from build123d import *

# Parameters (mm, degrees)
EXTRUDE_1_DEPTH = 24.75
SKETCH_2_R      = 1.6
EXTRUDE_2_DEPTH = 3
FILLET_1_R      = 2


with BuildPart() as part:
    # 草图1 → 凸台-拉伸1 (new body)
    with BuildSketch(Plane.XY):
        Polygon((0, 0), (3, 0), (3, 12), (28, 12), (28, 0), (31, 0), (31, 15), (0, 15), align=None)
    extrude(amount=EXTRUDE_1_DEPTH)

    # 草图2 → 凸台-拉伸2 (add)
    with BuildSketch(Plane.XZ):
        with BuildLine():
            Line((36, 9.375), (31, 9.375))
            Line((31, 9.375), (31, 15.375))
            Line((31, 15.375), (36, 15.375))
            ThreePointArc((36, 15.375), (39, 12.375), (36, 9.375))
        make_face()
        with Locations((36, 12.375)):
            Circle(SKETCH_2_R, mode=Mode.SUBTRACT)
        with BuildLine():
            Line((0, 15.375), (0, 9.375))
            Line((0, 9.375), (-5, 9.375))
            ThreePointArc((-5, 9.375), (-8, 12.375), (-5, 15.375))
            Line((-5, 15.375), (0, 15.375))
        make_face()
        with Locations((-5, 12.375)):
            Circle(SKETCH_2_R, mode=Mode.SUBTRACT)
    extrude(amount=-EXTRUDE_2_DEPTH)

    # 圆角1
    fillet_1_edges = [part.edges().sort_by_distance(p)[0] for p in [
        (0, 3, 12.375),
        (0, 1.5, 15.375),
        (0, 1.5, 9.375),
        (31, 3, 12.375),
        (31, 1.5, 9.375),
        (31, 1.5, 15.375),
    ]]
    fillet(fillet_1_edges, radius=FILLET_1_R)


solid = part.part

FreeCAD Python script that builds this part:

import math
import FreeCAD as App
import Part
import Sketcher
from FreeCAD import Vector


def edges_at(feature, points):
    """Names of the edges that pass closest to the given points."""
    edges = feature.Shape.Edges
    near = lambda p: min(range(len(edges)), key=lambda i: edges[i].distToShape(Part.Vertex(*p))[0])
    return sorted({f"Edge{near(p) + 1}" for p in points})


def add_polygon(sketch, points):
    """Adds a closed chain of lines whose ends are joined by coincident constraints."""
    first, n = sketch.GeometryCount, len(points)
    for a, b in zip(points, points[1:] + points[:1]):
        sketch.addGeometry(Part.LineSegment(App.Vector(*a, 0), App.Vector(*b, 0)), False)
    for i in range(n):
        sketch.addConstraint(Sketcher.Constraint("Coincident", first + i, 2, first + (i + 1) % n, 1))

doc = App.newDocument("Part")
body = doc.addObject("PartDesign::Body", "Body")

# Sketch on XY plane
sketch1 = body.newObject("Sketcher::SketchObject", "Sketch")
sketch1.AttachmentSupport = (doc.getObject("XY_Plane"), [""])
sketch1.MapMode = "FlatFace"
add_polygon(sketch1, [(0, 0), (3, 0), (3, 12), (28, 12), (28, 0), (31, 0), (31, 15), (0, 15)])  # lines 0-7
sketch1.addConstraint([
    Sketcher.Constraint("Horizontal", 0),
    Sketcher.Constraint("Vertical", 1),
    Sketcher.Constraint("Horizontal", 2),
    Sketcher.Constraint("Vertical", 3),
    Sketcher.Constraint("Horizontal", 4),
    Sketcher.Constraint("Vertical", 5),
    Sketcher.Constraint("Horizontal", 6),
    Sketcher.Constraint("Vertical", 7),
    Sketcher.Constraint("Coincident", 7, 2, -1, 1),
    Sketcher.Constraint("PointOnObject", 3, 2, -1),
    Sketcher.Constraint("Equal", 0, 4),
    Sketcher.Constraint("DistanceX", 0, 1, 0, 2, 3.0),
    Sketcher.Constraint("DistanceX", 2, 1, 2, 2, 25.0),
    Sketcher.Constraint("DistanceY", 1, 1, 1, 2, 12.0),
    Sketcher.Constraint("DistanceY", 5, 1, 5, 2, 15.0),
])
pad1 = body.newObject("PartDesign::Pad", "Pad")
pad1.Profile = sketch1
pad1.Length = 24.75

# Sketch on XZ plane
sketch2 = body.newObject("Sketcher::SketchObject", "Sketch001")
sketch2.AttachmentSupport = (doc.getObject("XZ_Plane"), [""])
sketch2.MapMode = "FlatFace"
sketch2.addGeometry([
    Part.LineSegment(Vector(31, 9.375, 0), Vector(36, 9.375, 0)),  # 0
    Part.ArcOfCircle(Part.Circle(Vector(36, 12.375, 0), Vector(0, 0, 1), 3), math.radians(-90), math.radians(90)),  # 1
    Part.LineSegment(Vector(36, 15.375, 0), Vector(31, 15.375, 0)),  # 2
    Part.LineSegment(Vector(31, 15.375, 0), Vector(31, 9.375, 0)),  # 3
    Part.Circle(Vector(36, 12.375, 0), Vector(0, 0, 1), 1.6),  # 4
    Part.LineSegment(Vector(0, 9.375, 0), Vector(0, 15.375, 0)),  # 5
    Part.LineSegment(Vector(0, 15.375, 0), Vector(-5, 15.375, 0)),  # 6
    Part.ArcOfCircle(Part.Circle(Vector(-5, 12.375, 0), Vector(0, 0, 1), 3), math.radians(90), math.radians(270)),  # 7
    Part.LineSegment(Vector(-5, 9.375, 0), Vector(0, 9.375, 0)),  # 8
    Part.Circle(Vector(-5, 12.375, 0), Vector(0, 0, 1), 1.6),  # 9
], False)
sketch2.addConstraint([
    Sketcher.Constraint("Tangent", 0, 2, 1, 1),
    Sketcher.Constraint("Tangent", 1, 2, 2, 1),
    Sketcher.Constraint("Coincident", 2, 2, 3, 1),
    Sketcher.Constraint("Coincident", 3, 2, 0, 1),
    Sketcher.Constraint("Coincident", 5, 2, 6, 1),
    Sketcher.Constraint("Tangent", 6, 2, 7, 1),
    Sketcher.Constraint("Tangent", 7, 2, 8, 1),
    Sketcher.Constraint("Coincident", 8, 2, 5, 1),
    Sketcher.Constraint("Horizontal", 0),
    Sketcher.Constraint("Horizontal", 2),
    Sketcher.Constraint("Vertical", 3),
    Sketcher.Constraint("Vertical", 5),
    Sketcher.Constraint("Horizontal", 6),
    Sketcher.Constraint("Horizontal", 8),
    Sketcher.Constraint("Coincident", 4, 3, 1, 3),
    Sketcher.Constraint("Coincident", 9, 3, 7, 3),
    Sketcher.Constraint("Equal", 1, 7),
    Sketcher.Constraint("Equal", 4, 9),
    Sketcher.Constraint("PointOnObject", 5, 2, -2),
    Sketcher.Constraint("Horizontal", 4, 3, 7, 3),
    Sketcher.Constraint("Equal", 2, 6),
    Sketcher.Constraint("Radius", 1, 3.0),
    Sketcher.Constraint("Diameter", 4, 3.2),
    Sketcher.Constraint("DistanceX", 0, 1, 0, 2, 5.0),
    Sketcher.Constraint("DistanceX", -1, 1, 1, 3, 36.0),
    Sketcher.Constraint("DistanceY", -1, 1, 1, 3, 12.375),
])
pad2 = body.newObject("PartDesign::Pad", "Pad001")
pad2.Profile = sketch2
pad2.Length = 3
pad2.Reversed = True
doc.recompute()

fillet = body.newObject("PartDesign::Fillet", "Fillet")
fillet.Base = (pad2, edges_at(pad2, [
    (0, 3, 12.375),
    (0, 1.5, 15.375),
    (0, 1.5, 9.375),
    (31, 3, 12.375),
    (31, 1.5, 9.375),
    (31, 1.5, 15.375),
]))
fillet.Radius = 2

doc.recompute()
